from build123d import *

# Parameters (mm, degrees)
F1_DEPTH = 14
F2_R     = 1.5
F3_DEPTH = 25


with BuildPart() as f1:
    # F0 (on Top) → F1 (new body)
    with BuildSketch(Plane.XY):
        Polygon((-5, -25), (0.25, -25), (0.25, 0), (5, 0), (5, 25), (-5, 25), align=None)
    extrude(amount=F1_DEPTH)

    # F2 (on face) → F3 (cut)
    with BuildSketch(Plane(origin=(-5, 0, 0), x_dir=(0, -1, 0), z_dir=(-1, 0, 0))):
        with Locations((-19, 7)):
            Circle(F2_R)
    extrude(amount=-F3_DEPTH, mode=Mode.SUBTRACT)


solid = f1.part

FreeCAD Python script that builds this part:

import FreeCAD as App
import Part
import Sketcher

doc = App.newDocument("Part")
body = doc.addObject("PartDesign::Body", "Body")

# Sketch on XY plane
sketch1 = body.newObject("Sketcher::SketchObject", "Sketch")
sketch1.AttachmentSupport = (doc.getObject("XY_Plane"), [""])
sketch1.MapMode = "FlatFace"
sketch1.addGeometry([
    Part.LineSegment(App.Vector(-5, -25, 0), App.Vector(0.25, -25, 0)),  # 0
    Part.LineSegment(App.Vector(0.25, -25, 0), App.Vector(0.25, 0, 0)),  # 1
    Part.LineSegment(App.Vector(0.25, 0, 0), App.Vector(5, 0, 0)),  # 2
    Part.LineSegment(App.Vector(5, 0, 0), App.Vector(5, 25, 0)),  # 3
    Part.LineSegment(App.Vector(5, 25, 0), App.Vector(-5, 25, 0)),  # 4
    Part.LineSegment(App.Vector(-5, 25, 0), App.Vector(-5, -25, 0)),  # 5
], False)
sketch1.addConstraint([
    Sketcher.Constraint("Coincident", 0, 2, 1, 1),
    Sketcher.Constraint("Coincident", 1, 2, 2, 1),
    Sketcher.Constraint("Coincident", 2, 2, 3, 1),
    Sketcher.Constraint("Coincident", 3, 2, 4, 1),
    Sketcher.Constraint("Coincident", 4, 2, 5, 1),
    Sketcher.Constraint("Coincident", 5, 2, 0, 1),
    Sketcher.Constraint("Horizontal", 0),
    Sketcher.Constraint("Vertical", 1),
    Sketcher.Constraint("Horizontal", 2),
    Sketcher.Constraint("Vertical", 3),
    Sketcher.Constraint("Horizontal", 4),
    Sketcher.Constraint("Vertical", 5),
    Sketcher.Constraint("Symmetric", 3, 2, 5, 2, -1, 1),
    Sketcher.Constraint("PointOnObject", 1, 2, -1),
    Sketcher.Constraint("DistanceX", 4, 2, 4, 1, 10.0),
    Sketcher.Constraint("DistanceY", 1, 1, 1, 2, 25.0),
    Sketcher.Constraint("DistanceX", 0, 1, 0, 2, 5.25),
])
pad1 = body.newObject("PartDesign::Pad", "Pad")
pad1.Profile = sketch1
pad1.Length = 14

# Sketch on YZ plane
sketch2 = body.newObject("Sketcher::SketchObject", "Sketch001")
sketch2.AttachmentSupport = (doc.getObject("YZ_Plane"), [""])
sketch2.MapMode = "FlatFace"
sketch2.AttachmentOffset = App.Placement(App.Vector(0, 0, -5), App.Rotation())
sketch2.addGeometry(Part.Circle(App.Vector(19, 7, 0), App.Vector(0, 0, 1), 1.5), False)
sketch2.addConstraint([
    Sketcher.Constraint("Diameter", 0, 3.0),
    Sketcher.Constraint("DistanceX", -1, 1, 0, 3, 19.0),
    Sketcher.Constraint("DistanceY", -1, 1, 0, 3, 7.0),
])
pocket1 = body.newObject("PartDesign::Pocket", "Pocket")
pocket1.Profile = sketch2
pocket1.Length = 25
pocket1.Reversed = True

doc.recompute()
